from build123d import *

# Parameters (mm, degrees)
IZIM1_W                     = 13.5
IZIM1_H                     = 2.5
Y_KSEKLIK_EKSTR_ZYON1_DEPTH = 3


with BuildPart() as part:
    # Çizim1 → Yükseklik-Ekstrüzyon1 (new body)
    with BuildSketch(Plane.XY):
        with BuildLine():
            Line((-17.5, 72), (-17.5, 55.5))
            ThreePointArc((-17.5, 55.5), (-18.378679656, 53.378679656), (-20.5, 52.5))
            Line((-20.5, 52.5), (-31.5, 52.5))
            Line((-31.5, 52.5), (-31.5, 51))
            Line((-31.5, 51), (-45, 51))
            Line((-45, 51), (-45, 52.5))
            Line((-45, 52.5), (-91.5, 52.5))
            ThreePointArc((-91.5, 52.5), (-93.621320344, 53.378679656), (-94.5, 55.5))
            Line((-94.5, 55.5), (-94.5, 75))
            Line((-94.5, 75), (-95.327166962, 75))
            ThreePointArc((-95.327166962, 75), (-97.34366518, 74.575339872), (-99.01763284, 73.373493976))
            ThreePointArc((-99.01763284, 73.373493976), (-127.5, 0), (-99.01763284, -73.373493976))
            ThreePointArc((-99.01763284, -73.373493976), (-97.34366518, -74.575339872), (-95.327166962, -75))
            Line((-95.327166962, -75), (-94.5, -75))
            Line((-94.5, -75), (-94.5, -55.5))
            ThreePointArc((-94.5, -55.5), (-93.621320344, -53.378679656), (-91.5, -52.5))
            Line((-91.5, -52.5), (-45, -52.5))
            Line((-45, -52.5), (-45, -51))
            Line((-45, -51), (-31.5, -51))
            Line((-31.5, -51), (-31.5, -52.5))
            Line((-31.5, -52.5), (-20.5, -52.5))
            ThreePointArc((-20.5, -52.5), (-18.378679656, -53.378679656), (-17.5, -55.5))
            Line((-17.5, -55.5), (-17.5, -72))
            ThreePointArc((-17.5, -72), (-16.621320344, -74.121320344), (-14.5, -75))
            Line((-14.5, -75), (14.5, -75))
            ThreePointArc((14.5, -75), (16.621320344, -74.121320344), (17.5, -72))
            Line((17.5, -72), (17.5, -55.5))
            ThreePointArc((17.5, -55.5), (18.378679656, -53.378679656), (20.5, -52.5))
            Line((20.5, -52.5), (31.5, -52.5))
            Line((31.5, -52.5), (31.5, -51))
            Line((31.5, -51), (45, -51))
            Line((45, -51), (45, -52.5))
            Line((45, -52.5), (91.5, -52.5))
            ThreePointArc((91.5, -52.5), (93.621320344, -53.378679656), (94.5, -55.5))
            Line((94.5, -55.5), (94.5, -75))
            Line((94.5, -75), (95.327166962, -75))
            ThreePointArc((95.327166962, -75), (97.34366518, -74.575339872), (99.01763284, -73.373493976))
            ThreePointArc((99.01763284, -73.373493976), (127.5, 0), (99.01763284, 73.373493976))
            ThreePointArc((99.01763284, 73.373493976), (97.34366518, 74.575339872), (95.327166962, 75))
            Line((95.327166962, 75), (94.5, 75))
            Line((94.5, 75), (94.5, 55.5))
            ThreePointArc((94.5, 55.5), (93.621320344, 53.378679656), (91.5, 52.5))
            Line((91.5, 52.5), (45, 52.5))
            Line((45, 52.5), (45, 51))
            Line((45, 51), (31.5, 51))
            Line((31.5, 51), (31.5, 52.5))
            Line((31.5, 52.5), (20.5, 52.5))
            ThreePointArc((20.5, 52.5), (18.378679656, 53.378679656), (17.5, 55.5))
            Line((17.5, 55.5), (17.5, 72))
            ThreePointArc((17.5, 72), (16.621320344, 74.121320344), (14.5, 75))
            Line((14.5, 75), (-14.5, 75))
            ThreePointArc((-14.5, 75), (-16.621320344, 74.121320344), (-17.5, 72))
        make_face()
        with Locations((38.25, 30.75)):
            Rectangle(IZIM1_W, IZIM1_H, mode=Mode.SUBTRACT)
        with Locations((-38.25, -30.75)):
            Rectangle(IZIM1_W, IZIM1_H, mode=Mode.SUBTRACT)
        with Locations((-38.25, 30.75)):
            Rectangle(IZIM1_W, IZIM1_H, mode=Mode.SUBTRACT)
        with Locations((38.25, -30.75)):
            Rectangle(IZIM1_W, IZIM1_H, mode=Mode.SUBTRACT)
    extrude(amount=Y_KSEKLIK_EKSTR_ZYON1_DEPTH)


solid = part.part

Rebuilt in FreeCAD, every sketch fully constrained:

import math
import FreeCAD as App
import Part
import Sketcher

V = App.Vector


def add_polygon(sketch, points):
    """Adds a closed chain of lines whose ends are joined by coincident constraints."""
    first, n = sketch.GeometryCount, len(points)
    for a, b in zip(points, points[1:] + points[:1]):
        sketch.addGeometry(Part.LineSegment(App.Vector(*a, 0), App.Vector(*b, 0)), False)
    for i in range(n):
        sketch.addConstraint(Sketcher.Constraint("Coincident", first + i, 2, first + (i + 1) % n, 1))

doc = App.newDocument("Part")
body = doc.addObject("PartDesign::Body", "Body")

sketch1 = body.newObject("Sketcher::SketchObject", "Sketch")
sketch1.AttachmentSupport = (doc.getObject("XY_Plane"), [""])
sketch1.MapMode = "FlatFace"
sketch1.addGeometry(Part.LineSegment(V(-17.5, 72, 0), V(-17.5, 55.5, 0)), False)
sketch1.addGeometry(Part.ArcOfCircle(Part.Circle(V(-20.5, 55.5, 0), V(0, 0, 1), 3), math.radians(-90), math.radians(0)), False)
sketch1.addGeometry(Part.LineSegment(V(-20.5, 52.5, 0), V(-31.5, 52.5, 0)), False)
sketch1.addGeometry(Part.LineSegment(V(-31.5, 52.5, 0), V(-31.5, 51, 0)), False)
sketch1.addGeometry(Part.LineSegment(V(-31.5, 51, 0), V(-45, 51, 0)), False)
sketch1.addGeometry(Part.LineSegment(V(-45, 51, 0), V(-45, 52.5, 0)), False)
sketch1.addGeometry(Part.LineSegment(V(-45, 52.5, 0), V(-91.5, 52.5, 0)), False)
sketch1.addGeometry(Part.ArcOfCircle(Part.Circle(V(-91.5, 55.5, 0), V(0, 0, 1), 3), math.radians(180), math.radians(270)), False)
sketch1.addGeometry(Part.LineSegment(V(-94.5, 55.5, 0), V(-94.5, 75, 0)), False)
sketch1.addGeometry(Part.LineSegment(V(-94.5, 75, 0), V(-95.3, 75, 0)), False)
sketch1.addGeometry(Part.ArcOfCircle(Part.Circle(V(-95.3, 70, 0), V(0, 0, 1), 5), math.radians(90), math.radians(138)), False)
sketch1.addGeometry(Part.ArcOfCircle(Part.Circle(V(-18.8, 0, 0), V(0, 0, 1), 108.8), math.radians(138), math.radians(222)), False)
sketch1.addGeometry(Part.ArcOfCircle(Part.Circle(V(-95.3, -70, 0), V(0, 0, 1), 5), math.radians(-138), math.radians(-90)), False)
sketch1.addGeometry(Part.LineSegment(V(-95.3, -75, 0), V(-94.5, -75, 0)), False)
sketch1.addGeometry(Part.LineSegment(V(-94.5, -75, 0), V(-94.5, -55.5, 0)), False)
sketch1.addGeometry(Part.ArcOfCircle(Part.Circle(V(-91.5, -55.5, 0), V(0, 0, 1), 3), math.radians(90), math.radians(180)), False)
sketch1.addGeometry(Part.LineSegment(V(-91.5, -52.5, 0), V(-45, -52.5, 0)), False)
sketch1.addGeometry(Part.LineSegment(V(-45, -52.5, 0), V(-45, -51, 0)), False)
sketch1.addGeometry(Part.LineSegment(V(-45, -51, 0), V(-31.5, -51, 0)), False)
sketch1.addGeometry(Part.LineSegment(V(-31.5, -51, 0), V(-31.5, -52.5, 0)), False)
sketch1.addGeometry(Part.LineSegment(V(-31.5, -52.5, 0), V(-20.5, -52.5, 0)), False)
sketch1.addGeometry(Part.ArcOfCircle(Part.Circle(V(-20.5, -55.5, 0), V(0, 0, 1), 3), math.radians(0), math.radians(90)), False)
sketch1.addGeometry(Part.LineSegment(V(-17.5, -55.5, 0), V(-17.5, -72, 0)), False)
sketch1.addGeometry(Part.ArcOfCircle(Part.Circle(V(-14.5, -72, 0), V(0, 0, 1), 3), math.radians(180), math.radians(270)), False)
sketch1.addGeometry(Part.LineSegment(V(-14.5, -75, 0), V(14.5, -75, 0)), False)
sketch1.addGeometry(Part.ArcOfCircle(Part.Circle(V(14.5, -72, 0), V(0, 0, 1), 3), math.radians(-90), math.radians(0)), False)
sketch1.addGeometry(Part.LineSegment(V(17.5, -72, 0), V(17.5, -55.5, 0)), False)
sketch1.addGeometry(Part.ArcOfCircle(Part.Circle(V(20.5, -55.5, 0), V(0, 0, 1), 3), math.radians(90), math.radians(180)), False)
sketch1.addGeometry(Part.LineSegment(V(20.5, -52.5, 0), V(31.5, -52.5, 0)), False)
sketch1.addGeometry(Part.LineSegment(V(31.5, -52.5, 0), V(31.5, -51, 0)), False)
sketch1.addGeometry(Part.LineSegment(V(31.5, -51, 0), V(45, -51, 0)), False)
sketch1.addGeometry(Part.LineSegment(V(45, -51, 0), V(45, -52.5, 0)), False)
sketch1.addGeometry(Part.LineSegment(V(45, -52.5, 0), V(91.5, -52.5, 0)), False)
sketch1.addGeometry(Part.ArcOfCircle(Part.Circle(V(91.5, -55.5, 0), V(0, 0, 1), 3), math.radians(0), math.radians(90)), False)
sketch1.addGeometry(Part.LineSegment(V(94.5, -55.5, 0), V(94.5, -75, 0)), False)
sketch1.addGeometry(Part.LineSegment(V(94.5, -75, 0), V(95.3, -75, 0)), False)
sketch1.addGeometry(Part.ArcOfCircle(Part.Circle(V(95.3, -70, 0), V(0, 0, 1), 5), math.radians(-90), math.radians(-42)), False)
sketch1.addGeometry(Part.ArcOfCircle(Part.Circle(V(18.8, 0, 0), V(0, 0, 1), 108.8), math.radians(-42), math.radians(42)), False)
sketch1.addGeometry(Part.ArcOfCircle(Part.Circle(V(95.3, 70, 0), V(0, 0, 1), 5), math.radians(42), math.radians(90)), False)
sketch1.addGeometry(Part.LineSegment(V(95.3, 75, 0), V(94.5, 75, 0)), False)
sketch1.addGeometry(Part.LineSegment(V(94.5, 75, 0), V(94.5, 55.5, 0)), False)
sketch1.addGeometry(Part.ArcOfCircle(Part.Circle(V(91.5, 55.5, 0), V(0, 0, 1), 3), math.radians(-90), math.radians(0)), False)
sketch1.addGeometry(Part.LineSegment(V(91.5, 52.5, 0), V(45, 52.5, 0)), False)
sketch1.addGeometry(Part.LineSegment(V(45, 52.5, 0), V(45, 51, 0)), False)
sketch1.addGeometry(Part.LineSegment(V(45, 51, 0), V(31.5, 51, 0)), False)
sketch1.addGeometry(Part.LineSegment(V(31.5, 51, 0), V(31.5, 52.5, 0)), False)
sketch1.addGeometry(Part.LineSegment(V(31.5, 52.5, 0), V(20.5, 52.5, 0)), False)
sketch1.addGeometry(Part.ArcOfCircle(Part.Circle(V(20.5, 55.5, 0), V(0, 0, 1), 3), math.radians(180), math.radians(270)), False)
sketch1.addGeometry(Part.LineSegment(V(17.5, 55.5, 0), V(17.5, 72, 0)), False)
sketch1.addGeometry(Part.ArcOfCircle(Part.Circle(V(14.5, 72, 0), V(0, 0, 1), 3), math.radians(0), math.radians(90)), False)
sketch1.addGeometry(Part.LineSegment(V(14.5, 75, 0), V(-14.5, 75, 0)), False)
sketch1.addGeometry(Part.ArcOfCircle(Part.Circle(V(-14.5, 72, 0), V(0, 0, 1), 3), math.radians(90), math.radians(180)), False)
add_polygon(sketch1, [(-31.5, -32), (-45, -32), (-45, -29.5), (-31.5, -29.5)])
add_polygon(sketch1, [(45, -32), (31.5, -32), (31.5, -29.5), (45, -29.5)])
add_polygon(sketch1, [(-31.5, 29.5), (-45, 29.5), (-45, 32), (-31.5, 32)])
add_polygon(sketch1, [(45, 29.5), (31.5, 29.5), (31.5, 32), (45, 32)])
sketch1.addConstraint(Sketcher.Constraint("Tangent", 0, 2, 1, 2))
sketch1.addConstraint(Sketcher.Constraint("Tangent", 1, 1, 2, 1))
sketch1.addConstraint(Sketcher.Constraint("Coincident", 2, 2, 3, 1))
sketch1.addConstraint(Sketcher.Constraint("Coincident", 3, 2, 4, 1))
sketch1.addConstraint(Sketcher.Constraint("Coincident", 4, 2, 5, 1))
sketch1.addConstraint(Sketcher.Constraint("Coincident", 5, 2, 6, 1))
sketch1.addConstraint(Sketcher.Constraint("Tangent", 6, 2, 7, 2))
sketch1.addConstraint(Sketcher.Constraint("Tangent", 7, 1, 8, 1))
sketch1.addConstraint(Sketcher.Constraint("Coincident", 8, 2, 9, 1))
sketch1.addConstraint(Sketcher.Constraint("Tangent", 9, 2, 10, 1))
sketch1.addConstraint(Sketcher.Constraint("Tangent", 10, 2, 11, 1))
sketch1.addConstraint(Sketcher.Constraint("Tangent", 11, 2, 12, 1))
sketch1.addConstraint(Sketcher.Constraint("Tangent", 12, 2, 13, 1))
sketch1.addConstraint(Sketcher.Constraint("Coincident", 13, 2, 14, 1))
sketch1.addConstraint(Sketcher.Constraint("Tangent", 14, 2, 15, 2))
sketch1.addConstraint(Sketcher.Constraint("Tangent", 15, 1, 16, 1))
sketch1.addConstraint(Sketcher.Constraint("Coincident", 16, 2, 17, 1))
sketch1.addConstraint(Sketcher.Constraint("Coincident", 17, 2, 18, 1))
sketch1.addConstraint(Sketcher.Constraint("Coincident", 18, 2, 19, 1))
sketch1.addConstraint(Sketcher.Constraint("Coincident", 19, 2, 20, 1))
sketch1.addConstraint(Sketcher.Constraint("Tangent", 20, 2, 21, 2))
sketch1.addConstraint(Sketcher.Constraint("Tangent", 21, 1, 22, 1))
sketch1.addConstraint(Sketcher.Constraint("Tangent", 22, 2, 23, 1))
sketch1.addConstraint(Sketcher.Constraint("Tangent", 23, 2, 24, 1))
sketch1.addConstraint(Sketcher.Constraint("Tangent", 24, 2, 25, 1))
sketch1.addConstraint(Sketcher.Constraint("Tangent", 25, 2, 26, 1))
sketch1.addConstraint(Sketcher.Constraint("Tangent", 26, 2, 27, 2))
sketch1.addConstraint(Sketcher.Constraint("Tangent", 27, 1, 28, 1))
sketch1.addConstraint(Sketcher.Constraint("Coincident", 28, 2, 29, 1))
sketch1.addConstraint(Sketcher.Constraint("Coincident", 29, 2, 30, 1))
sketch1.addConstraint(Sketcher.Constraint("Coincident", 30, 2, 31, 1))
sketch1.addConstraint(Sketcher.Constraint("Coincident", 31, 2, 32, 1))
sketch1.addConstraint(Sketcher.Constraint("Tangent", 32, 2, 33, 2))
sketch1.addConstraint(Sketcher.Constraint("Tangent", 33, 1, 34, 1))
sketch1.addConstraint(Sketcher.Constraint("Coincident", 34, 2, 35, 1))
sketch1.addConstraint(Sketcher.Constraint("Tangent", 35, 2, 36, 1))
sketch1.addConstraint(Sketcher.Constraint("Tangent", 36, 2, 37, 1))
sketch1.addConstraint(Sketcher.Constraint("Tangent", 37, 2, 38, 1))
sketch1.addConstraint(Sketcher.Constraint("Tangent", 38, 2, 39, 1))
sketch1.addConstraint(Sketcher.Constraint("Coincident", 39, 2, 40, 1))
sketch1.addConstraint(Sketcher.Constraint("Tangent", 40, 2, 41, 2))
sketch1.addConstraint(Sketcher.Constraint("Tangent", 41, 1, 42, 1))
sketch1.addConstraint(Sketcher.Constraint("Coincident", 42, 2, 43, 1))
sketch1.addConstraint(Sketcher.Constraint("Coincident", 43, 2, 44, 1))
sketch1.addConstraint(Sketcher.Constraint("Coincident", 44, 2, 45, 1))
sketch1.addConstraint(Sketcher.Constraint("Coincident", 45, 2, 46, 1))
sketch1.addConstraint(Sketcher.Constraint("Tangent", 46, 2, 47, 2))
sketch1.addConstraint(Sketcher.Constraint("Tangent", 47, 1, 48, 1))
sketch1.addConstraint(Sketcher.Constraint("Tangent", 48, 2, 49, 1))
sketch1.addConstraint(Sketcher.Constraint("Tangent", 49, 2, 50, 1))
sketch1.addConstraint(Sketcher.Constraint("Tangent", 50, 2, 51, 1))
sketch1.addConstraint(Sketcher.Constraint("Tangent", 51, 2, 0, 1))
sketch1.addConstraint(Sketcher.Constraint("Vertical", 0))
sketch1.addConstraint(Sketcher.Constraint("Horizontal", 2))
sketch1.addConstraint(Sketcher.Constraint("Vertical", 3))
sketch1.addConstraint(Sketcher.Constraint("Horizontal", 4))
sketch1.addConstraint(Sketcher.Constraint("Vertical", 5))
sketch1.addConstraint(Sketcher.Constraint("Horizontal", 6))
sketch1.addConstraint(Sketcher.Constraint("Vertical", 8))
sketch1.addConstraint(Sketcher.Constraint("Horizontal", 9))
sketch1.addConstraint(Sketcher.Constraint("Horizontal", 13))
sketch1.addConstraint(Sketcher.Constraint("Vertical", 14))
sketch1.addConstraint(Sketcher.Constraint("Horizontal", 16))
sketch1.addConstraint(Sketcher.Constraint("Vertical", 17))
sketch1.addConstraint(Sketcher.Constraint("Horizontal", 18))
sketch1.addConstraint(Sketcher.Constraint("Vertical", 19))
sketch1.addConstraint(Sketcher.Constraint("Horizontal", 20))
sketch1.addConstraint(Sketcher.Constraint("Vertical", 22))
sketch1.addConstraint(Sketcher.Constraint("Horizontal", 24))
sketch1.addConstraint(Sketcher.Constraint("Vertical", 26))
sketch1.addConstraint(Sketcher.Constraint("Horizontal", 28))
sketch1.addConstraint(Sketcher.Constraint("Vertical", 29))
sketch1.addConstraint(Sketcher.Constraint("Horizontal", 30))
sketch1.addConstraint(Sketcher.Constraint("Vertical", 31))
sketch1.addConstraint(Sketcher.Constraint("Horizontal", 32))
sketch1.addConstraint(Sketcher.Constraint("Vertical", 34))
sketch1.addConstraint(Sketcher.Constraint("Horizontal", 35))
sketch1.addConstraint(Sketcher.Constraint("Horizontal", 39))
sketch1.addConstraint(Sketcher.Constraint("Vertical", 40))
sketch1.addConstraint(Sketcher.Constraint("Horizontal", 42))
sketch1.addConstraint(Sketcher.Constraint("Vertical", 43))
sketch1.addConstraint(Sketcher.Constraint("Horizontal", 44))
sketch1.addConstraint(Sketcher.Constraint("Vertical", 45))
sketch1.addConstraint(Sketcher.Constraint("Horizontal", 46))
sketch1.addConstraint(Sketcher.Constraint("Vertical", 48))
sketch1.addConstraint(Sketcher.Constraint("Horizontal", 50))
sketch1.addConstraint(Sketcher.Constraint("Horizontal", 52))
sketch1.addConstraint(Sketcher.Constraint("Vertical", 53))
sketch1.addConstraint(Sketcher.Constraint("Horizontal", 54))
sketch1.addConstraint(Sketcher.Constraint("Vertical", 55))
sketch1.addConstraint(Sketcher.Constraint("Horizontal", 56))
sketch1.addConstraint(Sketcher.Constraint("Vertical", 57))
sketch1.addConstraint(Sketcher.Constraint("Horizontal", 58))
sketch1.addConstraint(Sketcher.Constraint("Vertical", 59))
sketch1.addConstraint(Sketcher.Constraint("Horizontal", 60))
sketch1.addConstraint(Sketcher.Constraint("Vertical", 61))
sketch1.addConstraint(Sketcher.Constraint("Horizontal", 62))
sketch1.addConstraint(Sketcher.Constraint("Vertical", 63))
sketch1.addConstraint(Sketcher.Constraint("Horizontal", 64))
sketch1.addConstraint(Sketcher.Constraint("Vertical", 65))
sketch1.addConstraint(Sketcher.Constraint("Horizontal", 66))
sketch1.addConstraint(Sketcher.Constraint("Vertical", 67))
sketch1.addConstraint(Sketcher.Constraint("Equal", 1, 7))
sketch1.addConstraint(Sketcher.Constraint("Equal", 10, 12))
sketch1.addConstraint(Sketcher.Constraint("Equal", 7, 15))
sketch1.addConstraint(Sketcher.Constraint("Equal", 15, 21))
sketch1.addConstraint(Sketcher.Constraint("Equal", 21, 23))
sketch1.addConstraint(Sketcher.Constraint("Equal", 23, 25))
sketch1.addConstraint(Sketcher.Constraint("Equal", 25, 27))
sketch1.addConstraint(Sketcher.Constraint("Equal", 27, 33))
sketch1.addConstraint(Sketcher.Constraint("Equal", 12, 36))
sketch1.addConstraint(Sketcher.Constraint("Equal", 11, 37))
sketch1.addConstraint(Sketcher.Constraint("Equal", 36, 38))
sketch1.addConstraint(Sketcher.Constraint("Equal", 33, 41))
sketch1.addConstraint(Sketcher.Constraint("Equal", 41, 47))
sketch1.addConstraint(Sketcher.Constraint("Equal", 47, 49))
sketch1.addConstraint(Sketcher.Constraint("Equal", 49, 51))
sketch1.addConstraint(Sketcher.Constraint("Symmetric", 1, 3, 27, 3, -1, 1))
sketch1.addConstraint(Sketcher.Constraint("Symmetric", 7, 3, 33, 3, -1, 1))
sketch1.addConstraint(Sketcher.Constraint("Symmetric", 10, 3, 36, 3, -1, 1))
sketch1.addConstraint(Sketcher.Constraint("Symmetric", 12, 3, 38, 3, -1, 1))
sketch1.addConstraint(Sketcher.Constraint("Symmetric", 15, 3, 41, 3, -1, 1))
sketch1.addConstraint(Sketcher.Constraint("Symmetric", 21, 3, 47, 3, -1, 1))
sketch1.addConstraint(Sketcher.Constraint("Symmetric", 3, 2, 29, 2, -1, 1))
sketch1.addConstraint(Sketcher.Constraint("Symmetric", 17, 2, 43, 2, -1, 1))
sketch1.addConstraint(Sketcher.Constraint("Symmetric", 58, 2, 60, 2, -1, 1))
sketch1.addConstraint(Sketcher.Constraint("Symmetric", 56, 2, 62, 2, -1, 1))
sketch1.addConstraint(Sketcher.Constraint("Symmetric", 54, 2, 64, 2, -1, 1))
sketch1.addConstraint(Sketcher.Constraint("Symmetric", 52, 2, 66, 2, -1, 1))
sketch1.addConstraint(Sketcher.Constraint("Symmetric", 21, 3, 27, 3, -2))
sketch1.addConstraint(Sketcher.Constraint("Symmetric", 15, 3, 33, 3, -2))
sketch1.addConstraint(Sketcher.Constraint("Symmetric", 12, 3, 36, 3, -2))
sketch1.addConstraint(Sketcher.Constraint("Symmetric", 18, 2, 29, 2, -2))
sketch1.addConstraint(Sketcher.Constraint("Symmetric", 55, 2, 56, 2, -2))
sketch1.addConstraint(Sketcher.Constraint("Symmetric", 53, 2, 58, 2, -2))
sketch1.addConstraint(Sketcher.Constraint("Horizontal", 1, 3, 7, 3))
sketch1.addConstraint(Sketcher.Constraint("Horizontal", 13, 2, 23, 2))
sketch1.addConstraint(Sketcher.Constraint("Horizontal", 39, 2, 49, 2))
sketch1.addConstraint(Sketcher.Constraint("Vertical", 5, 2, 16, 2))
sketch1.addConstraint(Sketcher.Constraint("Vertical", 31, 2, 42, 2))
sketch1.addConstraint(Sketcher.Constraint("Vertical", 29, 2, 44, 2))
sketch1.addConstraint(Sketcher.Constraint("Vertical", 17, 2, 52, 2))
sketch1.addConstraint(Sketcher.Constraint("Vertical", 19, 2, 54, 2))
sketch1.addConstraint(Sketcher.Constraint("Radius", 1, 3.0))
sketch1.addConstraint(Sketcher.Constraint("Radius", 10, 5.0))
sketch1.addConstraint(Sketcher.Constraint("DistanceX", 2, 2, 2, 1, 11.0))
sketch1.addConstraint(Sketcher.Constraint("DistanceX", 24, 1, 24, 2, 29.0))
sketch1.addConstraint(Sketcher.Constraint("Radius", 11, 108.75))
sketch1.addConstraint(Sketcher.Constraint("DistanceX", 4, 2, 4, 1, 13.5))
sketch1.addConstraint(Sketcher.Constraint("DistanceX", 6, 2, 6, 1, 46.5))
sketch1.addConstraint(Sketcher.Constraint("DistanceY", 0, 2, 0, 1, 16.5))
sketch1.addConstraint(Sketcher.Constraint("DistanceY", 3, 2, 3, 1, 1.5))
sketch1.addConstraint(Sketcher.Constraint("DistanceY", 53, 1, 53, 2, 2.5))
sketch1.addConstraint(Sketcher.Constraint("DistanceY", -1, 1, 10, 3, 70.0))
sketch1.addConstraint(Sketcher.Constraint("DistanceY", 52, 2, -1, 1, 32.0))
sketch1.addConstraint(Sketcher.Constraint("DistanceX", 11, 3, -1, 1, 18.75))
pad1 = body.newObject("PartDesign::Pad", "Pad")
pad1.Profile = sketch1
pad1.Length = 3

doc.recompute()
